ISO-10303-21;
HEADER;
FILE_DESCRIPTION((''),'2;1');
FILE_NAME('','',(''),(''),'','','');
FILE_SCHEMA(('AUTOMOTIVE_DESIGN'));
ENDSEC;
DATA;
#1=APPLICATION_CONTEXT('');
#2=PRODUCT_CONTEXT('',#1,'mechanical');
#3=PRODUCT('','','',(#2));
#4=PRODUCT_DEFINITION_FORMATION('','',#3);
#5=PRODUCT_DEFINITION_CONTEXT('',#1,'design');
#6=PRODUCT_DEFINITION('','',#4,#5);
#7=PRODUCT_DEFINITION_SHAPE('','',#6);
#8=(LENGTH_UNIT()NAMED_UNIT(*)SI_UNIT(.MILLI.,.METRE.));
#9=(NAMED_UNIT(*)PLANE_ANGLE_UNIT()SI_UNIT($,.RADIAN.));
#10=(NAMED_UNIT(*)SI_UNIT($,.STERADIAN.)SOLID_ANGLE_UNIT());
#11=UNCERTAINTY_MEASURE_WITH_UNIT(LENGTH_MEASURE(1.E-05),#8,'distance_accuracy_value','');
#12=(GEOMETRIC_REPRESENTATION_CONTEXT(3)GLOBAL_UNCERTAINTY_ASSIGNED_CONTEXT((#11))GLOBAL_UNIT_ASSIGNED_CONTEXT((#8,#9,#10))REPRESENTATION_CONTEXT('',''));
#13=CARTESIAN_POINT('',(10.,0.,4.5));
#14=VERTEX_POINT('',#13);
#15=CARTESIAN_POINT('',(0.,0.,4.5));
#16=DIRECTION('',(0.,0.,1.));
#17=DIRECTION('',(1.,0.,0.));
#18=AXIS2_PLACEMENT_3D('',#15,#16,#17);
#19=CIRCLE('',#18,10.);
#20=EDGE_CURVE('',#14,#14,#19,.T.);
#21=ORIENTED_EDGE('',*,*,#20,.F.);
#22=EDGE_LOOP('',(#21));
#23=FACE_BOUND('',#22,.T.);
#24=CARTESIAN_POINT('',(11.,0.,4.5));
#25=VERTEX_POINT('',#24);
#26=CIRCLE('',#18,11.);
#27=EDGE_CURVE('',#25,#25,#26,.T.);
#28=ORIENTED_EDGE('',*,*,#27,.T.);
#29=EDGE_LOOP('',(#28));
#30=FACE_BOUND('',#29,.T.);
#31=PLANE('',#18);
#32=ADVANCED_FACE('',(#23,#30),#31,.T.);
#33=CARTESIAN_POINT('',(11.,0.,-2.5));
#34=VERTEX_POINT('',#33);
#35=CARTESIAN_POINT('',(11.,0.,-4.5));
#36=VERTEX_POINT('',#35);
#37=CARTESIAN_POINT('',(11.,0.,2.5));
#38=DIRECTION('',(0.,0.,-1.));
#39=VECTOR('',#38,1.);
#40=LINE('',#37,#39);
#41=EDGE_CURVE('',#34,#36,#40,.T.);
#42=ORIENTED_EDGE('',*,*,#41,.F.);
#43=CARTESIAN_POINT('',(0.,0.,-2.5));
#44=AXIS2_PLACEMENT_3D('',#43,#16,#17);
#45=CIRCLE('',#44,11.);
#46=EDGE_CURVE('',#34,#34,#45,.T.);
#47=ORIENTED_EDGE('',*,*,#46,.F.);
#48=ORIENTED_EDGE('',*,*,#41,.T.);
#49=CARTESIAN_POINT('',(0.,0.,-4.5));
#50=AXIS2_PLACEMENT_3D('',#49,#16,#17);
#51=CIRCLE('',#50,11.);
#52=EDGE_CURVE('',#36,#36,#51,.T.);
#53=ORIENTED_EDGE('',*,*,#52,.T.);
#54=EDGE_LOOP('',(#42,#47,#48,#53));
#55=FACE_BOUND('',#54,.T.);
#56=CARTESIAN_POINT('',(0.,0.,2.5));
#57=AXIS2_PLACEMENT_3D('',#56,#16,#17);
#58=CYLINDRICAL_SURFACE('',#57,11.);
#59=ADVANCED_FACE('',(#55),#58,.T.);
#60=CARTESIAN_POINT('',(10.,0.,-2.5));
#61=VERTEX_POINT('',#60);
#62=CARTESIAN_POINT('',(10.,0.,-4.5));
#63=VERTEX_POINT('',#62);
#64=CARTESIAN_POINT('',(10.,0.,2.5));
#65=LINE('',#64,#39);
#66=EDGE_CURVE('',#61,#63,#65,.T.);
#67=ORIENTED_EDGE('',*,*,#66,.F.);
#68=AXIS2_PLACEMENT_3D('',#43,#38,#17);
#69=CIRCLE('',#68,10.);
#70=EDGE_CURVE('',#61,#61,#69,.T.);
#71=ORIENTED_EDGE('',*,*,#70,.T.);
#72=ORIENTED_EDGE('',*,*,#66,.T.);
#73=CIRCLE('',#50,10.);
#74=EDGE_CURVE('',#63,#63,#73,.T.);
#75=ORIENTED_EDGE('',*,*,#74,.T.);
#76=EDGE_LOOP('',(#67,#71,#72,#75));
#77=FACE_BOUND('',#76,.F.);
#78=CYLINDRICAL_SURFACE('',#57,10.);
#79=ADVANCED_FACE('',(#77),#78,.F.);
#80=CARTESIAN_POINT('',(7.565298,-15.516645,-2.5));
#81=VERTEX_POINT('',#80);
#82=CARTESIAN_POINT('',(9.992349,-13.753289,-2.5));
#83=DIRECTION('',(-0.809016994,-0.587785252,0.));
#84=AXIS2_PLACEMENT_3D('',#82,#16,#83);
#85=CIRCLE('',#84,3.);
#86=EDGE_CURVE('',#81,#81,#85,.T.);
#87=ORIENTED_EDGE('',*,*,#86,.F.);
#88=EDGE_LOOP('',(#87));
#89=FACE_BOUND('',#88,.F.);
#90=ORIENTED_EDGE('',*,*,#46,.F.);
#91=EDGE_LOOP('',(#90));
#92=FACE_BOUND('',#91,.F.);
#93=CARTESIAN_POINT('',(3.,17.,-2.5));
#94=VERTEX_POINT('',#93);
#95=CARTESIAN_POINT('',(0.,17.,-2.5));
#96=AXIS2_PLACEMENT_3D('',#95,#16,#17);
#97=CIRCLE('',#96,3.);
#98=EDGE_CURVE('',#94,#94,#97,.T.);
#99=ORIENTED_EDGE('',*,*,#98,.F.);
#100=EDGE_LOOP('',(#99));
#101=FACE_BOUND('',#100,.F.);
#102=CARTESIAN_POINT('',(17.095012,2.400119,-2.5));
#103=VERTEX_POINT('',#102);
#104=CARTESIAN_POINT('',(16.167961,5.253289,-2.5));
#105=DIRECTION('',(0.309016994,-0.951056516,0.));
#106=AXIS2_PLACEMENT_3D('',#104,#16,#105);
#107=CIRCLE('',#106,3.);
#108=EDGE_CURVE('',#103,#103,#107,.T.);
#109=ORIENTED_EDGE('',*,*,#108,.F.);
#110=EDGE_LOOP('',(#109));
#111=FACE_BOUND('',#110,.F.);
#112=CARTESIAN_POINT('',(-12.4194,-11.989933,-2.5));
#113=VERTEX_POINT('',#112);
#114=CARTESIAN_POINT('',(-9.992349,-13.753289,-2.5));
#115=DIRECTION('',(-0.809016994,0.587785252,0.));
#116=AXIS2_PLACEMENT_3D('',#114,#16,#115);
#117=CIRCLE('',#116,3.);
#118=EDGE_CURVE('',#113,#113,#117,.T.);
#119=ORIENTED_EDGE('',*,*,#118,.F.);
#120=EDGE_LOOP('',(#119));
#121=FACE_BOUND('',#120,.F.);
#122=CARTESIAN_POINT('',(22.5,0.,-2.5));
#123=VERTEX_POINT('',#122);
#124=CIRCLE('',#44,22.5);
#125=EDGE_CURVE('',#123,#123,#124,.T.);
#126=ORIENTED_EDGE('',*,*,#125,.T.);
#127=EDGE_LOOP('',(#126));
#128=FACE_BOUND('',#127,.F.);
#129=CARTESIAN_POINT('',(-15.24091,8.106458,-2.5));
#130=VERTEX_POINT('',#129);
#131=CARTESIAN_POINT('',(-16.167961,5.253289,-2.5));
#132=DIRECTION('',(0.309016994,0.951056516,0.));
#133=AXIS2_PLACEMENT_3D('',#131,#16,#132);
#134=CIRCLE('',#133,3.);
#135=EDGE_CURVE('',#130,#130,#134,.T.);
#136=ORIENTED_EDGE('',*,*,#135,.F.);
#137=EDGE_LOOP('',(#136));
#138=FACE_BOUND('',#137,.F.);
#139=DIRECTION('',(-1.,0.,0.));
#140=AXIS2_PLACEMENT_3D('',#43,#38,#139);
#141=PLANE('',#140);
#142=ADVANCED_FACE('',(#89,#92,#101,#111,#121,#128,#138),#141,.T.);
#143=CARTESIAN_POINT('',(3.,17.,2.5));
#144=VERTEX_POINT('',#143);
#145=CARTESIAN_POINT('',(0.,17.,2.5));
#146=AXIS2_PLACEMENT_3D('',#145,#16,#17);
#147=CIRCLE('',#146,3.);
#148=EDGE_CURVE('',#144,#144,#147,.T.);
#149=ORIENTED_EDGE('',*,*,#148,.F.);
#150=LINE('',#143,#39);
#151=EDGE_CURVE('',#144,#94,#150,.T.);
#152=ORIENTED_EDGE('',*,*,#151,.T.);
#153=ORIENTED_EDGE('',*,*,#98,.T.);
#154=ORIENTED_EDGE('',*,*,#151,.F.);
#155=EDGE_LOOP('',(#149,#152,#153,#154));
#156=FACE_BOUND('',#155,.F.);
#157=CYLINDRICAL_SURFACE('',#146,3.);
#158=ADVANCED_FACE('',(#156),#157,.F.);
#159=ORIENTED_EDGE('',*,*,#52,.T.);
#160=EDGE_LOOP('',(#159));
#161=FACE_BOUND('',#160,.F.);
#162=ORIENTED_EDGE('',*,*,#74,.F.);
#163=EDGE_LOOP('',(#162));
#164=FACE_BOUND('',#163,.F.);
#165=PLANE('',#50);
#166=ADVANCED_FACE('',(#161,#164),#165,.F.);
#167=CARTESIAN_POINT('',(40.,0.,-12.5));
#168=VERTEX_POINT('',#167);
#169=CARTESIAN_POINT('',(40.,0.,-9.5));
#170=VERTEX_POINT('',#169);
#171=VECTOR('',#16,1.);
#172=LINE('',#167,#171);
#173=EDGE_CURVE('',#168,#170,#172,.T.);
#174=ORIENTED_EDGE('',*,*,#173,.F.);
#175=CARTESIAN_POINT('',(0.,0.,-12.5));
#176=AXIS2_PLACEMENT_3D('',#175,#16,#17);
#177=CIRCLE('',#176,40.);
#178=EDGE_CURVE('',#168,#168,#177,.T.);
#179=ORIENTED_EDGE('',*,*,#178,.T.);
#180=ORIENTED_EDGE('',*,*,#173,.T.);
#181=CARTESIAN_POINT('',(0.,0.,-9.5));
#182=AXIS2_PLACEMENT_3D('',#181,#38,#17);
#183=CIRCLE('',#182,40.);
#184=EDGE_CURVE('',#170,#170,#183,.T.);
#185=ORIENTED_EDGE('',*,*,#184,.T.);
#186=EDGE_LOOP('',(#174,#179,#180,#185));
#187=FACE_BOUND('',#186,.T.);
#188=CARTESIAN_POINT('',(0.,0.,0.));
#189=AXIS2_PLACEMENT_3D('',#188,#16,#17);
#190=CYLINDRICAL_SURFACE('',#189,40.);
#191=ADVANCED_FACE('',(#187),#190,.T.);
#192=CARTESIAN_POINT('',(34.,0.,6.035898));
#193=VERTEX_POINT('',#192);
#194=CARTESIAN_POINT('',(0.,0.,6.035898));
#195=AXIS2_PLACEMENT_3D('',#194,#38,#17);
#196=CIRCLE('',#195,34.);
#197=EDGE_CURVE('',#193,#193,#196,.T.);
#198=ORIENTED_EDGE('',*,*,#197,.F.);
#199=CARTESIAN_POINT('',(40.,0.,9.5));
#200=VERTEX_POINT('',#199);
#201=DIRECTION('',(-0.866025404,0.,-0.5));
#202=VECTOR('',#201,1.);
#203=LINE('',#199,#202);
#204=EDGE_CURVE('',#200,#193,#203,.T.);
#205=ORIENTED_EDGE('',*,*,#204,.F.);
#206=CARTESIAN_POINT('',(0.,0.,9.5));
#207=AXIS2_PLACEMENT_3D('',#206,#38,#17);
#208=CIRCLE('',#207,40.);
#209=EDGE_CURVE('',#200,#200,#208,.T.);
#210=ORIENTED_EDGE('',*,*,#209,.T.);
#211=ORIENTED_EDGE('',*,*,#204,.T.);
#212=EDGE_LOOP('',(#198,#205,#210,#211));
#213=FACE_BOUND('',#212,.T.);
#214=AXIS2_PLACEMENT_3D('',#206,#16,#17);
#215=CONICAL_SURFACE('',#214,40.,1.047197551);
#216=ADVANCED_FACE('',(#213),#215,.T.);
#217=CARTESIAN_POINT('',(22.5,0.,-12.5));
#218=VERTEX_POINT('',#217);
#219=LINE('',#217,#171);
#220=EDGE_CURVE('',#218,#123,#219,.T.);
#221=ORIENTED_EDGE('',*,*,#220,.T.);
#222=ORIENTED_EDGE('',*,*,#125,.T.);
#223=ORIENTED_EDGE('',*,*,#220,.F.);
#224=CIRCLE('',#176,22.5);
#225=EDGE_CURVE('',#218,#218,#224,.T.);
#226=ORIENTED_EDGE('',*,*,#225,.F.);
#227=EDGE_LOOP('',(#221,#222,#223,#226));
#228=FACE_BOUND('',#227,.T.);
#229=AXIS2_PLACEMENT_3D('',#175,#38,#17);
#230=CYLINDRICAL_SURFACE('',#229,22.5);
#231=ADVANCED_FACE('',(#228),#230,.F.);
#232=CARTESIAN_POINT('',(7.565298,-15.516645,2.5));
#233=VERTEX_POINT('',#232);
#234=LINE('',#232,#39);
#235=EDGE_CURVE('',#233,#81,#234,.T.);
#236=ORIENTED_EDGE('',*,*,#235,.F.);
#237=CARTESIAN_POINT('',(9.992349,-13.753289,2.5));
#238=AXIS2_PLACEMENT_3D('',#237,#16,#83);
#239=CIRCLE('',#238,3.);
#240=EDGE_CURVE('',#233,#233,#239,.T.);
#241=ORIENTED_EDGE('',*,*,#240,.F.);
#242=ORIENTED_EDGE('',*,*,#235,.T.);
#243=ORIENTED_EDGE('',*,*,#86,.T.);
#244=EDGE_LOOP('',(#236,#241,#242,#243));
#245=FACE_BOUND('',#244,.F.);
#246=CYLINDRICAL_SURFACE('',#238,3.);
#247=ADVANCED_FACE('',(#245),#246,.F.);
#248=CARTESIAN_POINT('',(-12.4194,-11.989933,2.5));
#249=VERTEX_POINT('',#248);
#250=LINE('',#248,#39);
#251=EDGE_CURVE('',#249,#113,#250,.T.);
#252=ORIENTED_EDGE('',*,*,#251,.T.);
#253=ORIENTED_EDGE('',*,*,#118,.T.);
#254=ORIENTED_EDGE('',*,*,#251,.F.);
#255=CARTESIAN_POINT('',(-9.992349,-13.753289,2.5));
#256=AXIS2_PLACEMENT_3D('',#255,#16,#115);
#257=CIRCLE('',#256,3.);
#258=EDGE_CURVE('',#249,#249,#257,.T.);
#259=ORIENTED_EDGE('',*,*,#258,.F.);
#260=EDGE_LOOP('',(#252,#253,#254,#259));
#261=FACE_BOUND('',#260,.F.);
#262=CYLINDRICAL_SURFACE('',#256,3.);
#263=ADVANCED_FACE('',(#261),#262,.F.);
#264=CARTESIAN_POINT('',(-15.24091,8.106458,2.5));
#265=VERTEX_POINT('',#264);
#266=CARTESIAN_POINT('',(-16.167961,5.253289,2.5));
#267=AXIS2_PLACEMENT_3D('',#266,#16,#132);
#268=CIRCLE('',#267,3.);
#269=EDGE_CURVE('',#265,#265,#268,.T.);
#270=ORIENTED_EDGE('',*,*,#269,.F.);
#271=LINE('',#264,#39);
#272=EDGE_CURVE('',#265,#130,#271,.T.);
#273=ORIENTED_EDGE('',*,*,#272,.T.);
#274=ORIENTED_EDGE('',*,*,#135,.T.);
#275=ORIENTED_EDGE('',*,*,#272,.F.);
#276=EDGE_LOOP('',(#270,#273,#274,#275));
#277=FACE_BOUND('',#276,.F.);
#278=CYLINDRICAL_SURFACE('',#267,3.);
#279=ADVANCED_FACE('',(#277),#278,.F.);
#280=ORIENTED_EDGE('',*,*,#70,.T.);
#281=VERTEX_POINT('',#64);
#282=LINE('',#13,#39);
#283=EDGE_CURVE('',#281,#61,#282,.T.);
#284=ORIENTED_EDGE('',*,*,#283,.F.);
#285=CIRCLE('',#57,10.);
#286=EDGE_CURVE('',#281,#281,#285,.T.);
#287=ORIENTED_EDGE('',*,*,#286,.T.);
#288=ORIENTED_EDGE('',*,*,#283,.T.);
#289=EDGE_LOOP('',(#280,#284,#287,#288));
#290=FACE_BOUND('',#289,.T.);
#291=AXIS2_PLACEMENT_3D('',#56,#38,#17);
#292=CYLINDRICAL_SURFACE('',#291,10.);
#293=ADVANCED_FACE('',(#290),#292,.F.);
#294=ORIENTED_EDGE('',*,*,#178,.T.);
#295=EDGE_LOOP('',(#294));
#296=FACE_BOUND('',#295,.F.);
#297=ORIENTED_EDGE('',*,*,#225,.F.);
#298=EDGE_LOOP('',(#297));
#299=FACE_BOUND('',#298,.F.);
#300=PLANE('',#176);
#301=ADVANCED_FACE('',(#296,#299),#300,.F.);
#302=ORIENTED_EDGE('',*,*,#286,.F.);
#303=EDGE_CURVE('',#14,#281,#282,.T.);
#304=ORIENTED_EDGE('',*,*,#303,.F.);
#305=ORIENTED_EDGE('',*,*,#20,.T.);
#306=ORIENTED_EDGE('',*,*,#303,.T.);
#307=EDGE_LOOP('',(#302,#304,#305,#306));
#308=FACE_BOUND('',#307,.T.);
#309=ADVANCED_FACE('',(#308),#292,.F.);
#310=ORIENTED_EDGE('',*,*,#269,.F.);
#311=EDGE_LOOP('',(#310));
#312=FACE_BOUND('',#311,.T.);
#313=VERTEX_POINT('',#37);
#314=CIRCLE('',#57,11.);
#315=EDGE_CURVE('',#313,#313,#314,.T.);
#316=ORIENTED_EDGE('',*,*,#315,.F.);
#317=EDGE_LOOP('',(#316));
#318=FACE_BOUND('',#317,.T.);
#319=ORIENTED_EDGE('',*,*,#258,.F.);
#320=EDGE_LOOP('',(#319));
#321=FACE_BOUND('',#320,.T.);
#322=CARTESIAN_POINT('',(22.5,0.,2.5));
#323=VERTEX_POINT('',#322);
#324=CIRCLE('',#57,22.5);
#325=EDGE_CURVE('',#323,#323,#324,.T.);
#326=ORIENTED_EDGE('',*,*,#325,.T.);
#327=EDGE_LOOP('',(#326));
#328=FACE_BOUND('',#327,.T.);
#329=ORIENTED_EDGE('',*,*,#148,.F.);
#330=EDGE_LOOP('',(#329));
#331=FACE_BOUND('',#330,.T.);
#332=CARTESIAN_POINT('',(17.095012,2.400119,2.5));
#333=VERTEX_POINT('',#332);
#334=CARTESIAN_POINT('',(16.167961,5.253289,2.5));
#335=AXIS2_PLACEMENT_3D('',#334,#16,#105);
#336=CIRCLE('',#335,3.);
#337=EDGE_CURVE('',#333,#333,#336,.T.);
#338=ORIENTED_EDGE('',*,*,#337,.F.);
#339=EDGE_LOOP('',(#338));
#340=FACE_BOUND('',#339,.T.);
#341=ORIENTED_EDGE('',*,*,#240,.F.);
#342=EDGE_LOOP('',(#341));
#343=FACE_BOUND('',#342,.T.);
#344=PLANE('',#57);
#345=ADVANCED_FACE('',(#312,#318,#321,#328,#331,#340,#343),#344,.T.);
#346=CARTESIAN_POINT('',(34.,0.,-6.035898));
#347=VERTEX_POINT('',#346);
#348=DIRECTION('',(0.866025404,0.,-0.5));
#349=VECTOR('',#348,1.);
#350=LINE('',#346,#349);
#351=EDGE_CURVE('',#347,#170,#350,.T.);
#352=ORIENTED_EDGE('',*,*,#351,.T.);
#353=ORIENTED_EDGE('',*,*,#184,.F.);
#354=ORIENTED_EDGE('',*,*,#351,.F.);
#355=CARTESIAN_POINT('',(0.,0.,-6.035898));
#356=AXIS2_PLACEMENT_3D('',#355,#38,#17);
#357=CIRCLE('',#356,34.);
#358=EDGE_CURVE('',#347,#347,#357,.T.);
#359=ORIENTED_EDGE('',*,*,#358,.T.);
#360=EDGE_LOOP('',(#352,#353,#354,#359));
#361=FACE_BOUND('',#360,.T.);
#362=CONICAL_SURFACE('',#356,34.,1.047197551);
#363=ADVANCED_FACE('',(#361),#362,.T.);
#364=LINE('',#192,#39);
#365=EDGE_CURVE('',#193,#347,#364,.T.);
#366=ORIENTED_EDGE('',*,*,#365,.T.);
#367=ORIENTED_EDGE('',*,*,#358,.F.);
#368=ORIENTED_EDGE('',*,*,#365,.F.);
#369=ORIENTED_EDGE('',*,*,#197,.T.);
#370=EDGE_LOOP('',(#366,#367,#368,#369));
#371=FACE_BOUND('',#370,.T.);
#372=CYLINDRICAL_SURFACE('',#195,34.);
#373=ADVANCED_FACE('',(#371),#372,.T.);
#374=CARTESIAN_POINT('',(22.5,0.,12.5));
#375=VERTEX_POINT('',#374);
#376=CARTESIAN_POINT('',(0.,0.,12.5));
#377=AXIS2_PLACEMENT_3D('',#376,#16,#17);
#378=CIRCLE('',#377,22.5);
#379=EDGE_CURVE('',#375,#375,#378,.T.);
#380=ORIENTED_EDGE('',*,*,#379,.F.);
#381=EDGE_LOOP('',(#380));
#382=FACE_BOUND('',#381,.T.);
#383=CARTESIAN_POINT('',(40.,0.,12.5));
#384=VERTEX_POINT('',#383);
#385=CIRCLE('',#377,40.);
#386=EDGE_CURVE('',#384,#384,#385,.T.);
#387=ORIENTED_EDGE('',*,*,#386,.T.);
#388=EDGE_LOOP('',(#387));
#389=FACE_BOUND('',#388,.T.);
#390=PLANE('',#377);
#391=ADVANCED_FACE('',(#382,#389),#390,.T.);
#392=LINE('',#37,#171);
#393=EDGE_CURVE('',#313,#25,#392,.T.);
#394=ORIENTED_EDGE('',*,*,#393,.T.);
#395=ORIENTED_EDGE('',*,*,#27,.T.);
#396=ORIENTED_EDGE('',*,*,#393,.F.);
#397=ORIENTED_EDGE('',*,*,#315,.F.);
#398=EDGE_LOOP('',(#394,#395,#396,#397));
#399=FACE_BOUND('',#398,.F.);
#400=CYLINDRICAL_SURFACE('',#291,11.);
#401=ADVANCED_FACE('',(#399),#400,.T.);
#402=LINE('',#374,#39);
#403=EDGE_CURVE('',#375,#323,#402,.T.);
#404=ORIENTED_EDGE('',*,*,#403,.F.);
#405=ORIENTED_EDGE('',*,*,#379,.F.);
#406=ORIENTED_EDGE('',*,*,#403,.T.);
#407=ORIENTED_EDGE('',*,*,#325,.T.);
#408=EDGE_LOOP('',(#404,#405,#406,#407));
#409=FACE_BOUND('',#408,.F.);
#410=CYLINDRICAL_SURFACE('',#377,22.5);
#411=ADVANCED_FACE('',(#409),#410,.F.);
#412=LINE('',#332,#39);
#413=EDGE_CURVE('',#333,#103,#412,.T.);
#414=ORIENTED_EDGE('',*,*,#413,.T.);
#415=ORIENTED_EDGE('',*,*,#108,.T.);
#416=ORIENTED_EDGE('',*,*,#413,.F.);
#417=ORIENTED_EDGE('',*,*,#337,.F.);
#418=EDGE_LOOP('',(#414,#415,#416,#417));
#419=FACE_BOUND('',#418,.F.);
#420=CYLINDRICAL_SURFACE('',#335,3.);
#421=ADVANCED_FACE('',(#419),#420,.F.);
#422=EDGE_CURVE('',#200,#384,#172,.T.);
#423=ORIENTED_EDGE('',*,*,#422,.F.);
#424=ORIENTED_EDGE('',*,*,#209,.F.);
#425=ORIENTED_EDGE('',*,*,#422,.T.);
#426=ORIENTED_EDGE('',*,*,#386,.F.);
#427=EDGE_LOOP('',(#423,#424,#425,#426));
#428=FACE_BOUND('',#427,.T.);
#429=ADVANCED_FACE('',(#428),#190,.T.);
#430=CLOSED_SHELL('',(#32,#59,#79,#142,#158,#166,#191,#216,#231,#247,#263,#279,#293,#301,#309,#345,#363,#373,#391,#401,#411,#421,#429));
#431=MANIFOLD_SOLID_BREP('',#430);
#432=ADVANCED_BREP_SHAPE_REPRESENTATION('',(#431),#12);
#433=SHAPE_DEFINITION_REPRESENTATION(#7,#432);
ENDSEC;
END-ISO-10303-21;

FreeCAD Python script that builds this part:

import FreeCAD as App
import Part
import Sketcher
from FreeCAD import Vector
Q = App.Units.Quantity

doc = App.newDocument("Part")
body = doc.addObject("PartDesign::Body", "Body")

# Sketch on XY plane
sketch1 = body.newObject("Sketcher::SketchObject", "Sketch")
sketch1.AttachmentSupport = (doc.getObject("XY_Plane"), [""])
sketch1.MapMode = "FlatFace"
sketch1.addGeometry([
    Part.Circle(Vector(0, 0, 0), Vector(0, 0, 1), 40),
    Part.Circle(Vector(0, 0, 0), Vector(0, 0, 1), 10),
], False)
sketch1.addConstraint([
    Sketcher.Constraint("Coincident", 0, 3, -1, 1),
    Sketcher.Constraint("Coincident", 1, 3, -1, 1),
    Sketcher.Constraint("Diameter", 0, 80.0),
    Sketcher.Constraint("Diameter", 1, 20.0),
])
pad1 = body.newObject("PartDesign::Pad", "Pad")
pad1.Profile = sketch1
pad1.Length = 25
pad1.Midplane = True

# Sketch on XY plane
sketch2 = body.newObject("Sketcher::SketchObject", "Sketch001")
sketch2.AttachmentSupport = (doc.getObject("XY_Plane"), [""])
sketch2.MapMode = "FlatFace"
sketch2.AttachmentOffset = App.Placement(Vector(0, 0, 12.5), App.Rotation())
sketch2.addGeometry(Part.Circle(Vector(0, 0, 0), Vector(0, 0, 1), 22.5), False)
sketch2.addConstraint([
    Sketcher.Constraint("Coincident", 0, 3, -1, 1),
    Sketcher.Constraint("Diameter", 0, 45.0),
])
pocket1 = body.newObject("PartDesign::Pocket", "Pocket")
pocket1.Profile = sketch2
pocket1.Length = 10
doc.recompute()

mirrored = body.newObject("PartDesign::Mirrored", "Mirrored")
mirrored.Originals = [pocket1]
mirrored.MirrorPlane = (doc.getObject("XY_Plane"), [""])
body.Tip = mirrored

# Sketch on XY plane
sketch3 = body.newObject("Sketcher::SketchObject", "Sketch002")
sketch3.AttachmentSupport = (doc.getObject("XY_Plane"), [""])
sketch3.MapMode = "FlatFace"
sketch3.AttachmentOffset = App.Placement(Vector(0, 0, 2.5), App.Rotation())
sketch3.addGeometry(Part.Circle(Vector(0, 17, 0), Vector(0, 0, 1), 3), False)
sketch3.addConstraint([
    Sketcher.Constraint("PointOnObject", 0, 3, -2),
    Sketcher.Constraint("Diameter", 0, 6.0),
    Sketcher.Constraint("DistanceY", -1, 1, 0, 3, 17.0),
])
pocket2 = body.newObject("PartDesign::Pocket", "Pocket001")
pocket2.Profile = sketch3
pocket2.Type = "ThroughAll"
doc.recompute()

polarpattern = body.newObject("PartDesign::PolarPattern", "PolarPattern")
polarpattern.Originals = [pocket2]
polarpattern.Axis = (doc.getObject("Z_Axis"), [""])
polarpattern.Angle = 360
polarpattern.Occurrences = 5
body.Tip = polarpattern

# Sketch on XZ plane
sketch4 = body.newObject("Sketcher::SketchObject", "Sketch003")
sketch4.AttachmentSupport = (doc.getObject("XZ_Plane"), [""])
sketch4.MapMode = "FlatFace"
sketch4.addGeometry([
    Part.LineSegment(Vector(40, 9.5, 0), Vector(40, -9.5, 0)),
    Part.LineSegment(Vector(40, -9.5, 0), Vector(34, -6.035898, 0)),
    Part.LineSegment(Vector(34, -6.035898, 0), Vector(34, 6.035898, 0)),
    Part.LineSegment(Vector(34, 6.035898, 0), Vector(40, 9.5, 0)),
], False)
sketch4.addConstraint([
    Sketcher.Constraint("Coincident", 0, 2, 1, 1),
    Sketcher.Constraint("Coincident", 1, 2, 2, 1),
    Sketcher.Constraint("Coincident", 2, 2, 3, 1),
    Sketcher.Constraint("Coincident", 3, 2, 0, 1),
    Sketcher.Constraint("Vertical", 0),
    Sketcher.Constraint("Vertical", 2),
    Sketcher.Constraint("Equal", 1, 3),
    Sketcher.Constraint("DistanceY", 0, 2, 0, 1, 19.0),
    Sketcher.Constraint("Angle", 1, Q("150 deg")),
    Sketcher.Constraint("DistanceX", -1, 1, 0, 2, 40.0),
    Sketcher.Constraint("DistanceX", -1, 1, 1, 2, 34.0),
    Sketcher.Constraint("DistanceY", 0, 2, -1, 1, 9.5),
])
groove = body.newObject("PartDesign::Groove", "Groove")
groove.Profile = sketch4
groove.ReferenceAxis = (sketch4, ["V_Axis"])
groove.Angle = 360

# Sketch on XY plane
sketch5 = body.newObject("Sketcher::SketchObject", "Sketch004")
sketch5.AttachmentSupport = (doc.getObject("XY_Plane"), [""])
sketch5.MapMode = "FlatFace"
sketch5.AttachmentOffset = App.Placement(Vector(0, 0, 2.5), App.Rotation())
sketch5.addGeometry([
    Part.Circle(Vector(0, 0, 0), Vector(0, 0, 1), 11),
    Part.Circle(Vector(0, 0, 0), Vector(0, 0, 1), 10),
], False)
sketch5.addConstraint([
    Sketcher.Constraint("Coincident", 0, 3, -1, 1),
    Sketcher.Constraint("Coincident", 1, 3, -1, 1),
    Sketcher.Constraint("Diameter", 0, 22.0),
    Sketcher.Constraint("Diameter", 1, 20.0),
])
pad2 = body.newObject("PartDesign::Pad", "Pad001")
pad2.Profile = sketch5
pad2.Type = "TwoLengths"
pad2.Length = 2
pad2.Length2 = 7

doc.recompute()
